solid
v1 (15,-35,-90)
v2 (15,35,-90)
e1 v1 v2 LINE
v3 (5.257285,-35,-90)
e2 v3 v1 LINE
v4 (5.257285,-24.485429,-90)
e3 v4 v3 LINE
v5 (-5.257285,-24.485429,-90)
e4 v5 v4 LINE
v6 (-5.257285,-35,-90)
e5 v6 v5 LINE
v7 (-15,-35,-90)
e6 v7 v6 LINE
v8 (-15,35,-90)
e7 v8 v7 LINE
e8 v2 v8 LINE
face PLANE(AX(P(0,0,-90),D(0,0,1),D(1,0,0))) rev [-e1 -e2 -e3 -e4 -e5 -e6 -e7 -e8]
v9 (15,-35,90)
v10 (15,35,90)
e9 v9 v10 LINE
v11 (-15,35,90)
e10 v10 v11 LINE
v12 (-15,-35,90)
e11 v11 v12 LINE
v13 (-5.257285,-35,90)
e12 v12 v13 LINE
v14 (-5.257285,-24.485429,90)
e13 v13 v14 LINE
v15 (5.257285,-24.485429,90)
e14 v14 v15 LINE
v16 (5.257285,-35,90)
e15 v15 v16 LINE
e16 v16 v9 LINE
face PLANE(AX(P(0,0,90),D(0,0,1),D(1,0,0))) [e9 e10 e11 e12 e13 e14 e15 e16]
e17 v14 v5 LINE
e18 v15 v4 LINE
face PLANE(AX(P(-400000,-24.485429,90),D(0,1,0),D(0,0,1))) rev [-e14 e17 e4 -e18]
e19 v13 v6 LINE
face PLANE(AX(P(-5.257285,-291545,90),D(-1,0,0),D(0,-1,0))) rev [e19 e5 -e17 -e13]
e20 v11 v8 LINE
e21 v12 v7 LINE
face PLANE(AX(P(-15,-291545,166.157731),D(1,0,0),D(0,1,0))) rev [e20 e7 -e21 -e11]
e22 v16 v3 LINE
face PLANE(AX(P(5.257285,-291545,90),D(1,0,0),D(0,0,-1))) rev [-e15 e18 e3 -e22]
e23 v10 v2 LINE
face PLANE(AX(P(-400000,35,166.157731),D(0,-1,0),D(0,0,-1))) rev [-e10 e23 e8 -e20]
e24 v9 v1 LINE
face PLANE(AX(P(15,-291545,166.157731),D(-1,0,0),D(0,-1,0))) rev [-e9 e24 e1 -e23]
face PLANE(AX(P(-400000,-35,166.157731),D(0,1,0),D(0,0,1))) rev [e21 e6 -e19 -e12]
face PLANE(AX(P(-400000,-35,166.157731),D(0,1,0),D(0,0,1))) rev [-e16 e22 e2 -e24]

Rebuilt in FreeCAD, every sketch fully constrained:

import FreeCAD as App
import Part
import Sketcher

V = App.Vector
Q = App.Units.Quantity


def add_polygon(sketch, points):
    """Adds a closed chain of lines whose ends are joined by coincident constraints."""
    first, n = sketch.GeometryCount, len(points)
    for a, b in zip(points, points[1:] + points[:1]):
        sketch.addGeometry(Part.LineSegment(App.Vector(*a, 0), App.Vector(*b, 0)), False)
    for i in range(n):
        sketch.addConstraint(Sketcher.Constraint("Coincident", first + i, 2, first + (i + 1) % n, 1))

doc = App.newDocument("Part")
body = doc.addObject("PartDesign::Body", "Body")

# Sketch on XY plane
sketch1 = doc.addObject("Sketcher::SketchObject", "Sketch")
body.addObject(sketch1)
sketch1.AttachmentSupport = (doc.XY_Plane, [""])
sketch1.MapMode = "FlatFace"
sketch1.AttachmentOffset = App.Placement(V(0, 0, -90), App.Rotation())
add_polygon(sketch1, [(-15, 35), (-15, -35), (15, -35), (15, 35)])  # lines 0-3
sketch1.addConstraint([
    Sketcher.Constraint("Vertical", 0),
    Sketcher.Constraint("Horizontal", 1),
    Sketcher.Constraint("Vertical", 2),
    Sketcher.Constraint("Horizontal", 3),
    Sketcher.Constraint("Symmetric", 0, 2, 2, 2, -1, 1),
    Sketcher.Constraint("DistanceX", 1, 1, 1, 2, Q("30 mm")),
    Sketcher.Constraint("DistanceY", 0, 2, 0, 1, Q("70 mm")),
])
pad1 = doc.addObject("PartDesign::Pad", "Pad")
body.addObject(pad1)
pad1.Profile = sketch1
pad1.Length = 180

# Sketch on XY plane
sketch2 = doc.addObject("Sketcher::SketchObject", "Sketch001")
body.addObject(sketch2)
sketch2.AttachmentSupport = (doc.XY_Plane, [""])
sketch2.MapMode = "FlatFace"
add_polygon(sketch2, [(-5.257285, -35), (-5.257285, -24.485429), (5.257285, -24.485429), (5.257285, -35)])  # lines 0-3
sketch2.addConstraint([
    Sketcher.Constraint("Vertical", 0),
    Sketcher.Constraint("Horizontal", 1),
    Sketcher.Constraint("Vertical", 2),
    Sketcher.Constraint("Horizontal", 3),
    Sketcher.Constraint("Equal", 3, 0),
    Sketcher.Constraint("DistanceY", 2, 2, -1, 1, Q("35 mm")),
    Sketcher.Constraint("DistanceX", 1, 1, 1, 2, Q("10.514571 mm")),
    Sketcher.Constraint("DistanceX", 0, 2, -1, 1, Q("5.257285 mm")),
])
pocket1 = doc.addObject("PartDesign::Pocket", "Pocket")
body.addObject(pocket1)
pocket1.Profile = sketch2
pocket1.Type = "ThroughAll"
pocket1.Midplane = True

doc.recompute()
